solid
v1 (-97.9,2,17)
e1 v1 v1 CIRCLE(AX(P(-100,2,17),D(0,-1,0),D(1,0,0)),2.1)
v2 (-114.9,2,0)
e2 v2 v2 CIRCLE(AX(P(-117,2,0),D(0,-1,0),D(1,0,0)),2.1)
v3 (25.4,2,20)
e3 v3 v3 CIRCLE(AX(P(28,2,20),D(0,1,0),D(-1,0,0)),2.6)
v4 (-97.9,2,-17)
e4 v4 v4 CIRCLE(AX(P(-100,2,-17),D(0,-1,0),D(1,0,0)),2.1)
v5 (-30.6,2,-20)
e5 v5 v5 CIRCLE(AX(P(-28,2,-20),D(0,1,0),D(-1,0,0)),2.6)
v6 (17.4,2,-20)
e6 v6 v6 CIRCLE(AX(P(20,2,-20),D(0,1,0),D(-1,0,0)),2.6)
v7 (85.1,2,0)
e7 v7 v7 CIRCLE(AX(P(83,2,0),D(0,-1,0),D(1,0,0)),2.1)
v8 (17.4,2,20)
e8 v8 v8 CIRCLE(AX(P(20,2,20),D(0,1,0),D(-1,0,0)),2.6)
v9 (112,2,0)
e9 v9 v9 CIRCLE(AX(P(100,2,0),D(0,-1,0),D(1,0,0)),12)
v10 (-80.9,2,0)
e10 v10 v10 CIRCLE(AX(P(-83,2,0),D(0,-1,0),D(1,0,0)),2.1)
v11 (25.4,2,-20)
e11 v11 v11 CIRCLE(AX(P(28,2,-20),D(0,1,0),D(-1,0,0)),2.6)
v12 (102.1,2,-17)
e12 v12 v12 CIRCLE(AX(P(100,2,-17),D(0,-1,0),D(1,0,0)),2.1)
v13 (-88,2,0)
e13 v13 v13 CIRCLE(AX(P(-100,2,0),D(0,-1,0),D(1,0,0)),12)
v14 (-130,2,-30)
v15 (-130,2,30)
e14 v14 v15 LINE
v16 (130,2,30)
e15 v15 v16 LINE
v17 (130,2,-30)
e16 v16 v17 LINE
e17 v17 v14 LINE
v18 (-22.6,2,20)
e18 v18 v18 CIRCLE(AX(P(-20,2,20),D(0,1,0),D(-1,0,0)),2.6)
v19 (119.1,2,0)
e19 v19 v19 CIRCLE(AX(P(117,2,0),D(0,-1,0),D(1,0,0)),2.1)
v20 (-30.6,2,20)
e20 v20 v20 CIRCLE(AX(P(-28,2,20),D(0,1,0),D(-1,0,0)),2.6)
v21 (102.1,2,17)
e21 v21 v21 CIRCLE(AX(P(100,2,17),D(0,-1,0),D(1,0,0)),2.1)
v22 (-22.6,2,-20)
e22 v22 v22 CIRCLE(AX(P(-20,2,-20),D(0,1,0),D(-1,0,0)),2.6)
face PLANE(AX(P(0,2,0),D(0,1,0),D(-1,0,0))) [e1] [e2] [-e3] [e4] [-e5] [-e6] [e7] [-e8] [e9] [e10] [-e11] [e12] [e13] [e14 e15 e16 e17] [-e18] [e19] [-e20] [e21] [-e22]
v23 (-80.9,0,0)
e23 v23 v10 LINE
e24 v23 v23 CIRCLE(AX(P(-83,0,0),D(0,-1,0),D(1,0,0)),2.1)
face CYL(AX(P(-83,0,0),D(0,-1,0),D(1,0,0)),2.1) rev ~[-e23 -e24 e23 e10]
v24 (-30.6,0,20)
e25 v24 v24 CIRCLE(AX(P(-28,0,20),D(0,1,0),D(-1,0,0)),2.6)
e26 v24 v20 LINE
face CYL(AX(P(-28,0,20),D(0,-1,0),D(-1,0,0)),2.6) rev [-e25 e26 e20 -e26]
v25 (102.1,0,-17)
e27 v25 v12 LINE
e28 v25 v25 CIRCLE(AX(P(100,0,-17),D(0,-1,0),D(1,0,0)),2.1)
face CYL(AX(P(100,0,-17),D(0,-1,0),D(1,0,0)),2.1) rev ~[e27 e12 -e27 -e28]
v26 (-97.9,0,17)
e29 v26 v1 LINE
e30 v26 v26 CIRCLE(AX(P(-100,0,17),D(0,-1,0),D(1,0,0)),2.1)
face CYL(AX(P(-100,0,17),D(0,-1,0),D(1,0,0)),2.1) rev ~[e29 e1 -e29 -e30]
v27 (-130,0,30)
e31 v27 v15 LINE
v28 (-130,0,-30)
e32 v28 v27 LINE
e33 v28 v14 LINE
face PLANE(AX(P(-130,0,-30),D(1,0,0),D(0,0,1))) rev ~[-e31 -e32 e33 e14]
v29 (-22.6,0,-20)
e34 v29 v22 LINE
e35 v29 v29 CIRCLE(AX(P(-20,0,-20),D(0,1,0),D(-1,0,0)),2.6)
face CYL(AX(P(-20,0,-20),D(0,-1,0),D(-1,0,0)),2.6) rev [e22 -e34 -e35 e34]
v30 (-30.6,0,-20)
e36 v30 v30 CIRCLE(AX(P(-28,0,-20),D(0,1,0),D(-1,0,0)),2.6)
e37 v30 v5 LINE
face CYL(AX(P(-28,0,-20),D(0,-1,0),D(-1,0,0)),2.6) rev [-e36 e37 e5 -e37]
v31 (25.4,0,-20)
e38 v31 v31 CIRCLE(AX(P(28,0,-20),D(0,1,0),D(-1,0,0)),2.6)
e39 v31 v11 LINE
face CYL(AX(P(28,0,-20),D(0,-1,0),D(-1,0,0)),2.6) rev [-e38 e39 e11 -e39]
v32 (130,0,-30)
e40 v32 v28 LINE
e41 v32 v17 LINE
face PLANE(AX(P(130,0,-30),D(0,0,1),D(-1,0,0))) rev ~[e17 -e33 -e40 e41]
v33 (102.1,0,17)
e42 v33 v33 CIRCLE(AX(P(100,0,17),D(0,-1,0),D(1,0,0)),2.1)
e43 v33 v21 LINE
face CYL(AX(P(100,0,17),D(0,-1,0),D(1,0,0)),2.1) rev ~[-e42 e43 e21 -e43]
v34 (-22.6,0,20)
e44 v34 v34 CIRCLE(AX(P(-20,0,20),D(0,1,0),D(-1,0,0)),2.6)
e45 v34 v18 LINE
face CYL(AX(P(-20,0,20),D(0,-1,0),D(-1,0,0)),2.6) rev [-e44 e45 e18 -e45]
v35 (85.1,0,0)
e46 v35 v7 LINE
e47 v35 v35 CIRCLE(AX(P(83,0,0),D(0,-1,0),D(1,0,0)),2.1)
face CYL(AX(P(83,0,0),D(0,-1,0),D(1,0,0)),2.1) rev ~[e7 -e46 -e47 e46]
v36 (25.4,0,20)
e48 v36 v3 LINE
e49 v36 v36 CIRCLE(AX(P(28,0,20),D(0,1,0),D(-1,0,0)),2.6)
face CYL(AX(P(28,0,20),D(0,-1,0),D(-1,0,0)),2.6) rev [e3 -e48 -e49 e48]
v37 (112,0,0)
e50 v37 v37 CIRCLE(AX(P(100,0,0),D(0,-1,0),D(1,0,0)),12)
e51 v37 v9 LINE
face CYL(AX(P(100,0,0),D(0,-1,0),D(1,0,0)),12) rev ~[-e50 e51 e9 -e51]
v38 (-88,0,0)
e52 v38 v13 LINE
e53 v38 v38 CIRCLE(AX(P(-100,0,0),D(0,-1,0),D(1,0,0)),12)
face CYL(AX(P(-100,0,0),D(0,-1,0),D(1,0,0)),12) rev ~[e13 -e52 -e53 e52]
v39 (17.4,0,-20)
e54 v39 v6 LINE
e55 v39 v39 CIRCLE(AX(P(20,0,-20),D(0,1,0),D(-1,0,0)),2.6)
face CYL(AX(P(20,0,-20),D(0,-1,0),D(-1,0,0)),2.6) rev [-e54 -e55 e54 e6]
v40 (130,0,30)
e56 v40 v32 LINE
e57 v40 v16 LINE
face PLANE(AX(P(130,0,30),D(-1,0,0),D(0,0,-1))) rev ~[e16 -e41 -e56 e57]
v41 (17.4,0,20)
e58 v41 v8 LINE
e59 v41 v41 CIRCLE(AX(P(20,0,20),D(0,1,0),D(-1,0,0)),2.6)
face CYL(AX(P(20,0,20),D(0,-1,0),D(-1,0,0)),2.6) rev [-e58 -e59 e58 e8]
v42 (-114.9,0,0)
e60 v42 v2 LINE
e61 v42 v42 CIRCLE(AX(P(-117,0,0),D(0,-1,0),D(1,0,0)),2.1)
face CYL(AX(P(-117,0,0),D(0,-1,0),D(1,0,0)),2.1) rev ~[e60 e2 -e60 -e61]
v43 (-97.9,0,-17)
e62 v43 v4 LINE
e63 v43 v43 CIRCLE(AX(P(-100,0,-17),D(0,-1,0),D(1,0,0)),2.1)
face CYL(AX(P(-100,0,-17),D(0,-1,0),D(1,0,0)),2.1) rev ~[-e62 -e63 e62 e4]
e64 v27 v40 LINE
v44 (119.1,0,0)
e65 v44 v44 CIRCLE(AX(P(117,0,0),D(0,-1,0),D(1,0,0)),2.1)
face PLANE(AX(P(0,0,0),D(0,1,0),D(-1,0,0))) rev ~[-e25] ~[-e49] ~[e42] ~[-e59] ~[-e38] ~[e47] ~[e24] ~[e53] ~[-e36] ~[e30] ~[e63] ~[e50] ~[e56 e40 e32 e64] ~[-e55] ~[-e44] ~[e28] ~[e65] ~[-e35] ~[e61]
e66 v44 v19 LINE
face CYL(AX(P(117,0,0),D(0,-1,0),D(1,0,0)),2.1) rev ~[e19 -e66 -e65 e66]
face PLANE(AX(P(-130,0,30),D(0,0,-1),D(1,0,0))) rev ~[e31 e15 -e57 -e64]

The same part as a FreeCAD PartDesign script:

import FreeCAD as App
import Part
import Sketcher
from FreeCAD import Vector


def add_polygon(sketch, points):
    """Adds a closed chain of lines whose ends are joined by coincident constraints."""
    first, n = sketch.GeometryCount, len(points)
    for a, b in zip(points, points[1:] + points[:1]):
        sketch.addGeometry(Part.LineSegment(App.Vector(*a, 0), App.Vector(*b, 0)), False)
    for i in range(n):
        sketch.addConstraint(Sketcher.Constraint("Coincident", first + i, 2, first + (i + 1) % n, 1))

doc = App.newDocument("Part")
params = doc.addObject("Spreadsheet::Sheet", "Params")
for row, (alias, value) in enumerate([
    ("sketch1_diameter", "5.2 mm"),
    ("sketch1_width", "260 mm"),
    ("sketch1_height", "60 mm"),
    ("pad1_length", "2 mm"),
    ("sketch2_diameter", "24 mm"),
    ("pocket1_length", "10 mm"),
    ("sketch3_diameter", "4.2 mm"),
    ("pocket2_length", "10 mm"),
], start=1):
    params.set(f"A{row}", alias)
    params.set(f"B{row}", "=" + value)
    params.setAlias(f"B{row}", alias)

body = doc.addObject("PartDesign::Body", "Body")

# Sketch on XZ plane
sketch1 = body.newObject("Sketcher::SketchObject", "Sketch")
sketch1.AttachmentSupport = (doc.getObject("XZ_Plane"), [""])
sketch1.MapMode = "FlatFace"
add_polygon(sketch1, [(130, 30), (130, -30), (-130, -30), (-130, 30)])  # lines 0-3
sketch1.addGeometry(Part.Circle(Vector(28, -20, 0), Vector(0, 0, 1), 2.6), False)  # 4
sketch1.addGeometry(Part.Circle(Vector(20, -20, 0), Vector(0, 0, 1), 2.6), False)  # 5
sketch1.addGeometry(Part.Circle(Vector(-20, -20, 0), Vector(0, 0, 1), 2.6), False)  # 6
sketch1.addGeometry(Part.Circle(Vector(-28, -20, 0), Vector(0, 0, 1), 2.6), False)  # 7
sketch1.addGeometry(Part.Circle(Vector(28, 20, 0), Vector(0, 0, 1), 2.6), False)  # 8
sketch1.addGeometry(Part.Circle(Vector(20, 20, 0), Vector(0, 0, 1), 2.6), False)  # 9
sketch1.addGeometry(Part.Circle(Vector(-20, 20, 0), Vector(0, 0, 1), 2.6), False)  # 10
sketch1.addGeometry(Part.Circle(Vector(-28, 20, 0), Vector(0, 0, 1), 2.6), False)  # 11
sketch1.addConstraint(Sketcher.Constraint("Vertical", 0))
sketch1.addConstraint(Sketcher.Constraint("Horizontal", 1))
sketch1.addConstraint(Sketcher.Constraint("Vertical", 2))
sketch1.addConstraint(Sketcher.Constraint("Horizontal", 3))
sketch1.addConstraint(Sketcher.Constraint("Equal", 4, 5))
sketch1.addConstraint(Sketcher.Constraint("Equal", 5, 6))
sketch1.addConstraint(Sketcher.Constraint("Equal", 6, 7))
sketch1.addConstraint(Sketcher.Constraint("Equal", 7, 8))
sketch1.addConstraint(Sketcher.Constraint("Equal", 8, 9))
sketch1.addConstraint(Sketcher.Constraint("Equal", 9, 10))
sketch1.addConstraint(Sketcher.Constraint("Equal", 10, 11))
sketch1.addConstraint(Sketcher.Constraint("Symmetric", 7, 3, 8, 3, -1, 1))
sketch1.addConstraint(Sketcher.Constraint("Symmetric", 6, 3, 9, 3, -1, 1))
sketch1.addConstraint(Sketcher.Constraint("Symmetric", 5, 3, 10, 3, -1, 1))
sketch1.addConstraint(Sketcher.Constraint("Symmetric", 4, 3, 11, 3, -1, 1))
sketch1.addConstraint(Sketcher.Constraint("Symmetric", 0, 2, 2, 2, -1, 1))
sketch1.addConstraint(Sketcher.Constraint("Symmetric", 5, 3, 6, 3, -2))
sketch1.addConstraint(Sketcher.Constraint("Symmetric", 4, 3, 7, 3, -2))
sketch1.addConstraint(Sketcher.Constraint("Horizontal", 4, 3, 5, 3))
sketch1.addConstraint(Sketcher.Constraint("Diameter", 4, 5.2))
sketch1.addConstraint(Sketcher.Constraint("DistanceX", 1, 2, 1, 1, 260.0))
sketch1.addConstraint(Sketcher.Constraint("DistanceY", 0, 2, 0, 1, 60.0))
sketch1.addConstraint(Sketcher.Constraint("DistanceX", 5, 3, 4, 3, 8.0))
sketch1.addConstraint(Sketcher.Constraint("DistanceX", 6, 3, 5, 3, 40.0))
sketch1.addConstraint(Sketcher.Constraint("DistanceY", 4, 3, 8, 3, 40.0))
sketch1.setExpression("Constraints[23]", "Params.sketch1_diameter")
sketch1.setExpression("Constraints[24]", "Params.sketch1_width")
sketch1.setExpression("Constraints[25]", "Params.sketch1_height")
pad1 = body.newObject("PartDesign::Pad", "Pad")
pad1.Profile = sketch1
pad1.setExpression("Length", "Params.pad1_length")
pad1.Reversed = True

# Sketch on XZ plane
sketch2 = body.newObject("Sketcher::SketchObject", "Sketch001")
sketch2.AttachmentSupport = (doc.getObject("XZ_Plane"), [""])
sketch2.MapMode = "FlatFace"
sketch2.addGeometry(Part.Circle(Vector(-100, 0, 0), Vector(0, 0, 1), 12), False)
sketch2.addGeometry(Part.Circle(Vector(100, 0, 0), Vector(0, 0, 1), 12), False)
sketch2.addConstraint(Sketcher.Constraint("Equal", 0, 1))
sketch2.addConstraint(Sketcher.Constraint("Symmetric", 0, 3, 1, 3, -1, 1))
sketch2.addConstraint(Sketcher.Constraint("PointOnObject", 0, 3, -1))
sketch2.addConstraint(Sketcher.Constraint("Diameter", 0, 24.0))
sketch2.addConstraint(Sketcher.Constraint("DistanceX", 0, 3, -1, 1, 100.0))
sketch2.setExpression("Constraints[3]", "Params.sketch2_diameter")
pocket1 = body.newObject("PartDesign::Pocket", "Pocket")
pocket1.Profile = sketch2
pocket1.setExpression("Length", "Params.pocket1_length")

# Sketch on XZ plane
sketch3 = body.newObject("Sketcher::SketchObject", "Sketch002")
sketch3.AttachmentSupport = (doc.getObject("XZ_Plane"), [""])
sketch3.MapMode = "FlatFace"
sketch3.addGeometry(Part.Circle(Vector(-100, 17, 0), Vector(0, 0, 1), 2.1), False)
sketch3.addGeometry(Part.Circle(Vector(-83, 0, 0), Vector(0, 0, 1), 2.1), False)
sketch3.addGeometry(Part.Circle(Vector(-100, -17, 0), Vector(0, 0, 1), 2.1), False)
sketch3.addGeometry(Part.Circle(Vector(-117, 0, 0), Vector(0, 0, 1), 2.1), False)
sketch3.addGeometry(Part.Circle(Vector(100, 17, 0), Vector(0, 0, 1), 2.1), False)
sketch3.addGeometry(Part.Circle(Vector(117, 0, 0), Vector(0, 0, 1), 2.1), False)
sketch3.addGeometry(Part.Circle(Vector(83, 0, 0), Vector(0, 0, 1), 2.1), False)
sketch3.addGeometry(Part.Circle(Vector(100, -17, 0), Vector(0, 0, 1), 2.1), False)
sketch3.addConstraint(Sketcher.Constraint("Equal", 0, 1))
sketch3.addConstraint(Sketcher.Constraint("Equal", 1, 2))
sketch3.addConstraint(Sketcher.Constraint("Equal", 2, 3))
sketch3.addConstraint(Sketcher.Constraint("Equal", 3, 4))
sketch3.addConstraint(Sketcher.Constraint("Equal", 4, 5))
sketch3.addConstraint(Sketcher.Constraint("Equal", 5, 6))
sketch3.addConstraint(Sketcher.Constraint("Equal", 6, 7))
sketch3.addConstraint(Sketcher.Constraint("Symmetric", 2, 3, 4, 3, -1, 1))
sketch3.addConstraint(Sketcher.Constraint("Symmetric", 3, 3, 5, 3, -1, 1))
sketch3.addConstraint(Sketcher.Constraint("Symmetric", 1, 3, 6, 3, -1, 1))
sketch3.addConstraint(Sketcher.Constraint("Symmetric", 0, 3, 7, 3, -1, 1))
sketch3.addConstraint(Sketcher.Constraint("Symmetric", 0, 3, 4, 3, -2))
sketch3.addConstraint(Sketcher.Constraint("PointOnObject", 1, 3, -1))
sketch3.addConstraint(Sketcher.Constraint("PointOnObject", 3, 3, -1))
sketch3.addConstraint(Sketcher.Constraint("Diameter", 0, 4.2))
sketch3.addConstraint(Sketcher.Constraint("DistanceX", 0, 3, -1, 1, 100.0))
sketch3.addConstraint(Sketcher.Constraint("DistanceY", -1, 1, 0, 3, 17.0))
sketch3.addConstraint(Sketcher.Constraint("DistanceX", 1, 3, -1, 1, 83.0))
sketch3.addConstraint(Sketcher.Constraint("DistanceX", 3, 3, -1, 1, 117.0))
sketch3.setExpression("Constraints[14]", "Params.sketch3_diameter")
pocket2 = body.newObject("PartDesign::Pocket", "Pocket001")
pocket2.Profile = sketch3
pocket2.setExpression("Length", "Params.pocket2_length")

doc.recompute()
